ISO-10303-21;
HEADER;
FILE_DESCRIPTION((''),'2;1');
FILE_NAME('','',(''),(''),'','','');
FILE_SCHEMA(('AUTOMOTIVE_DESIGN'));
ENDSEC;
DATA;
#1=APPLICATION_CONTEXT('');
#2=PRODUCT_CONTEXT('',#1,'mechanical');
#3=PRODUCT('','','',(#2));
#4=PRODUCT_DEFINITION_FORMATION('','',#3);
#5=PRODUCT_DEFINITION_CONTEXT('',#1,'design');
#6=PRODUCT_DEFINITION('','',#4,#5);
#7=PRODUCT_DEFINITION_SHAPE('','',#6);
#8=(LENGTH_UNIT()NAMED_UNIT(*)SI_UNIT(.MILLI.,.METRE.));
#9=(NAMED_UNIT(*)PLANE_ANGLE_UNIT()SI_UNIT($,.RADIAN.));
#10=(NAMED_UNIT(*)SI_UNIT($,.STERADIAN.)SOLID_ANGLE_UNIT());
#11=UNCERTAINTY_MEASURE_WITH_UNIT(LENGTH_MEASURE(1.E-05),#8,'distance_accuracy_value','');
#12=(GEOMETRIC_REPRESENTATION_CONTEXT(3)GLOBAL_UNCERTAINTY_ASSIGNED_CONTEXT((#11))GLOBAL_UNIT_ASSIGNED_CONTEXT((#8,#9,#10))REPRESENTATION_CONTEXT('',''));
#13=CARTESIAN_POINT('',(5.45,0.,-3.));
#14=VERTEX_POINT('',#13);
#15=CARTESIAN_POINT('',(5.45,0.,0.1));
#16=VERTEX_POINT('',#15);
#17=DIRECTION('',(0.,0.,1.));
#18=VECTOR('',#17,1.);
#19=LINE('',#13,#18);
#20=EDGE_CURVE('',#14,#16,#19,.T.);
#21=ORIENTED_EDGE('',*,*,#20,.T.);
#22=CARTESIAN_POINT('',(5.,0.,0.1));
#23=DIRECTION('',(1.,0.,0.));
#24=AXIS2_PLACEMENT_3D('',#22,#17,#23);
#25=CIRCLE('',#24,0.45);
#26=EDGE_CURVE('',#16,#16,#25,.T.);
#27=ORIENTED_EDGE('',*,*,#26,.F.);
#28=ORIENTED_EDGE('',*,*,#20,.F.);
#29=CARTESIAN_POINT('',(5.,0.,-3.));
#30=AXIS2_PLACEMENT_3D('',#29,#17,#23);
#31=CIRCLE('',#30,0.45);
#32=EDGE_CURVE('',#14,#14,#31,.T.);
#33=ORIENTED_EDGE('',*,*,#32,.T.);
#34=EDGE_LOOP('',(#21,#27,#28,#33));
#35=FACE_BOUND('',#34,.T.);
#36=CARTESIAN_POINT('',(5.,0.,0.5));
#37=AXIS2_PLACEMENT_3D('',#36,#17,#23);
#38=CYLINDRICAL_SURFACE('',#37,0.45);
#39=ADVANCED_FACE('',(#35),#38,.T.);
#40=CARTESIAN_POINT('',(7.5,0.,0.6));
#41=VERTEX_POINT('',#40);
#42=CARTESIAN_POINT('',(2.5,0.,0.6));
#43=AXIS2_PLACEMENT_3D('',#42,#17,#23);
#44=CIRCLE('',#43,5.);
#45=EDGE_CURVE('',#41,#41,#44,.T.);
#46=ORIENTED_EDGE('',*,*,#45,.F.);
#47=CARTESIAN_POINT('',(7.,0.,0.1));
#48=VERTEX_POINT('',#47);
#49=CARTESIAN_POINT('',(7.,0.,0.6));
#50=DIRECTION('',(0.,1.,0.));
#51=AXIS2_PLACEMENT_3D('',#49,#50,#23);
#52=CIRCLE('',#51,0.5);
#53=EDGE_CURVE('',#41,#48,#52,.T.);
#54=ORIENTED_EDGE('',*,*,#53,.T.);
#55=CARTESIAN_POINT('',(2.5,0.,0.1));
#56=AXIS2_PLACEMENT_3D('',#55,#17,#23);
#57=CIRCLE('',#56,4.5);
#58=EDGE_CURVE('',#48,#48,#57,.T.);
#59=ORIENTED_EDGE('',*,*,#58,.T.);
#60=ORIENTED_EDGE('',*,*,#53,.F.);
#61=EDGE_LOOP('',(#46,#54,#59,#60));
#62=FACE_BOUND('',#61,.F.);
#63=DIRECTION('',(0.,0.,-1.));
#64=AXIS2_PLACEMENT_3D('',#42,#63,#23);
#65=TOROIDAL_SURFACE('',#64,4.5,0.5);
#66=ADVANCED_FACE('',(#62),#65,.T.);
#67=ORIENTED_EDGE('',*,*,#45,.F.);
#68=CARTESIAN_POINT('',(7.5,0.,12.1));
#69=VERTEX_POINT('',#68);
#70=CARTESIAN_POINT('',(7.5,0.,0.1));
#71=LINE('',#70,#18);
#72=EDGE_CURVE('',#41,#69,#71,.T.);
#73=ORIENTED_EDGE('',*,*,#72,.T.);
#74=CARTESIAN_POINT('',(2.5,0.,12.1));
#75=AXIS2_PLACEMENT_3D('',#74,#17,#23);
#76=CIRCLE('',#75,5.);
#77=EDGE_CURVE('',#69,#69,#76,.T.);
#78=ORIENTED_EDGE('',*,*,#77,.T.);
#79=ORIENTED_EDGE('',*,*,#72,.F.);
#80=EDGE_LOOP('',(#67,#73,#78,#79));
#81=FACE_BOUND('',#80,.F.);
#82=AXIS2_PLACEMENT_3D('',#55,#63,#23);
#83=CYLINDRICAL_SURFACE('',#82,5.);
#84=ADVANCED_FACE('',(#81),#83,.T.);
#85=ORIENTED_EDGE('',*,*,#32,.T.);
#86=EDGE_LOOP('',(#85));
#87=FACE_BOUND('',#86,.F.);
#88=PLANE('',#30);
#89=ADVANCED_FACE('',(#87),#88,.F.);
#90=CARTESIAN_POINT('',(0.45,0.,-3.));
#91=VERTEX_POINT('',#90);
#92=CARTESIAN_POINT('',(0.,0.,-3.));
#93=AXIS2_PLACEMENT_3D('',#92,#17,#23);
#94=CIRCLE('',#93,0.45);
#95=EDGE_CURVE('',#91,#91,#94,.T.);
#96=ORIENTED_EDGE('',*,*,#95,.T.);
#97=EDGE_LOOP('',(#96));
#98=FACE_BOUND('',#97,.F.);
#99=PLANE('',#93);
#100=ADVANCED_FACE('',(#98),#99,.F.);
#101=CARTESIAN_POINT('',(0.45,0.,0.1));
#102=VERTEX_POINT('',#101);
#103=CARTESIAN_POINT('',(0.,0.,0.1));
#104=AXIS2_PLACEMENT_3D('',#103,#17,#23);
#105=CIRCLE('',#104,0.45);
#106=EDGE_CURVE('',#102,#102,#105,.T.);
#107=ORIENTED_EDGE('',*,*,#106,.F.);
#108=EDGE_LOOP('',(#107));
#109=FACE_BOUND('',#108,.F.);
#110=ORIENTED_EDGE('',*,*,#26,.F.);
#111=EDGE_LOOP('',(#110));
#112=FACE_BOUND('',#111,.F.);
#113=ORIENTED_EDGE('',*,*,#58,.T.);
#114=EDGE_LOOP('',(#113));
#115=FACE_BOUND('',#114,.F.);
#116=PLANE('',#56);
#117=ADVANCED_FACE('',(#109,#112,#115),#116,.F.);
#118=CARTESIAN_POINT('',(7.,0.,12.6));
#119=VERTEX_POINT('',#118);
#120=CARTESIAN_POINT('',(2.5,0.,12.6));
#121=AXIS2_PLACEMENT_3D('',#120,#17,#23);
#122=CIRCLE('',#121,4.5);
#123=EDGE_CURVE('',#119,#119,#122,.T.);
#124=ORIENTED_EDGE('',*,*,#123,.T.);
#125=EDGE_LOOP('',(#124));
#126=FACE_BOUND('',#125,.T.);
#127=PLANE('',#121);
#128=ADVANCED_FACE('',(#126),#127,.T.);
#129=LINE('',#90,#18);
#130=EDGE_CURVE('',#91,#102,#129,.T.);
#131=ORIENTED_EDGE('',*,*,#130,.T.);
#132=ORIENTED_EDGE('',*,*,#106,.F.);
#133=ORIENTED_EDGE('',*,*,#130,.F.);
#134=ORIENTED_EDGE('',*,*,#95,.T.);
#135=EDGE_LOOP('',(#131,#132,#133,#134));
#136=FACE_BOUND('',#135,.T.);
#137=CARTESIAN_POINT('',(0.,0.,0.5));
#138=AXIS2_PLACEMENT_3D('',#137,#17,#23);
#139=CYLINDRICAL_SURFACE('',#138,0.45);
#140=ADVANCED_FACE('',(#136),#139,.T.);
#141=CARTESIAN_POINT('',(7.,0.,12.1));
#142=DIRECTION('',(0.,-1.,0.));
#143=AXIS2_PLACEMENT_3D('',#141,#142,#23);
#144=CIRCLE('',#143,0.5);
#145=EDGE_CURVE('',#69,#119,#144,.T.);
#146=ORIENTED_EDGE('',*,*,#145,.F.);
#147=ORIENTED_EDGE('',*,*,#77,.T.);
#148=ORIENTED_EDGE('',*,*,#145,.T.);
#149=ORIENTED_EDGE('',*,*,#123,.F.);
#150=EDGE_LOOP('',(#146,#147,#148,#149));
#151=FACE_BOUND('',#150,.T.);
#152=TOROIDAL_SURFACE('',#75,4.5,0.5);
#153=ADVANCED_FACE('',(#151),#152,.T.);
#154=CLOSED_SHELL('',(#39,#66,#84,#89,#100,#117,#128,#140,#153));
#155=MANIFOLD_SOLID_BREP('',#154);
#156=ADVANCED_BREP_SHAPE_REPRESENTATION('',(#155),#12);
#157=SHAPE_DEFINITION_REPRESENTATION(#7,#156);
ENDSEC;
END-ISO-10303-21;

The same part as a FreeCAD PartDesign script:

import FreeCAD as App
import Part
import Sketcher
from FreeCAD import Vector


def edges_at(feature, points):
    """Names of the edges that pass closest to the given points."""
    edges = feature.Shape.Edges
    near = lambda p: min(range(len(edges)), key=lambda i: edges[i].distToShape(Part.Vertex(*p))[0])
    return sorted({f"Edge{near(p) + 1}" for p in points})

doc = App.newDocument("Part")
body = doc.addObject("PartDesign::Body", "Body")
body.AllowCompound = True

# Sketch on XY plane
sketch1 = body.newObject("Sketcher::SketchObject", "Sketch")
sketch1.AttachmentSupport = (doc.getObject("XY_Plane"), [""])
sketch1.MapMode = "FlatFace"
sketch1.AttachmentOffset = App.Placement(Vector(0, 0, 0.5), App.Rotation())
sketch1.addGeometry([
    Part.Circle(Vector(0, 0, 0), Vector(0, 0, 1), 0.45),
    Part.Circle(Vector(5, 0, 0), Vector(0, 0, 1), 0.45),
], False)
sketch1.addConstraint([
    Sketcher.Constraint("Coincident", 0, 3, -1, 1),
    Sketcher.Constraint("Equal", 0, 1),
    Sketcher.Constraint("PointOnObject", 1, 3, -1),
    Sketcher.Constraint("Diameter", 0, 0.9),
    Sketcher.Constraint("DistanceX", -1, 1, 1, 3, 5.0),
])
pad1 = body.newObject("PartDesign::Pad", "Pad")
pad1.Profile = sketch1
pad1.Type = "TwoLengths"
pad1.Length = 6.25
pad1.Length2 = 3.5
body2 = doc.addObject("PartDesign::Body", "Body001")

# Sketch on XY plane
sketch2 = body2.newObject("Sketcher::SketchObject", "Sketch001")
sketch2.AttachmentSupport = (doc.getObject("XY_Plane001"), [""])
sketch2.MapMode = "FlatFace"
sketch2.AttachmentOffset = App.Placement(Vector(0, 0, 0.1), App.Rotation())
sketch2.addGeometry(Part.Circle(Vector(2, 0, 0), Vector(0, 0, 1), 5), False)
sketch2.addConstraint([
    Sketcher.Constraint("PointOnObject", 0, 3, -1),
    Sketcher.Constraint("Diameter", 0, 10.0),
    Sketcher.Constraint("DistanceX", -1, 1, 0, 3, 2.5),
])
pad2 = body2.newObject("PartDesign::Pad", "Pad001")
pad2.Profile = sketch2
pad2.Length = 12.5
doc.recompute()

fillet = body2.newObject("PartDesign::Fillet", "Fillet")
fillet.Base = (pad2, edges_at(pad2, [(-2.5, 0, 0.1), (-2.5, 0, 12.6)]))
fillet.Radius = 0.5
doc.recompute()

boolean = body2.newObject("PartDesign::Boolean", "Boolean")
boolean.Type = "Fuse"
boolean.addObjects([body])

doc.recompute()
